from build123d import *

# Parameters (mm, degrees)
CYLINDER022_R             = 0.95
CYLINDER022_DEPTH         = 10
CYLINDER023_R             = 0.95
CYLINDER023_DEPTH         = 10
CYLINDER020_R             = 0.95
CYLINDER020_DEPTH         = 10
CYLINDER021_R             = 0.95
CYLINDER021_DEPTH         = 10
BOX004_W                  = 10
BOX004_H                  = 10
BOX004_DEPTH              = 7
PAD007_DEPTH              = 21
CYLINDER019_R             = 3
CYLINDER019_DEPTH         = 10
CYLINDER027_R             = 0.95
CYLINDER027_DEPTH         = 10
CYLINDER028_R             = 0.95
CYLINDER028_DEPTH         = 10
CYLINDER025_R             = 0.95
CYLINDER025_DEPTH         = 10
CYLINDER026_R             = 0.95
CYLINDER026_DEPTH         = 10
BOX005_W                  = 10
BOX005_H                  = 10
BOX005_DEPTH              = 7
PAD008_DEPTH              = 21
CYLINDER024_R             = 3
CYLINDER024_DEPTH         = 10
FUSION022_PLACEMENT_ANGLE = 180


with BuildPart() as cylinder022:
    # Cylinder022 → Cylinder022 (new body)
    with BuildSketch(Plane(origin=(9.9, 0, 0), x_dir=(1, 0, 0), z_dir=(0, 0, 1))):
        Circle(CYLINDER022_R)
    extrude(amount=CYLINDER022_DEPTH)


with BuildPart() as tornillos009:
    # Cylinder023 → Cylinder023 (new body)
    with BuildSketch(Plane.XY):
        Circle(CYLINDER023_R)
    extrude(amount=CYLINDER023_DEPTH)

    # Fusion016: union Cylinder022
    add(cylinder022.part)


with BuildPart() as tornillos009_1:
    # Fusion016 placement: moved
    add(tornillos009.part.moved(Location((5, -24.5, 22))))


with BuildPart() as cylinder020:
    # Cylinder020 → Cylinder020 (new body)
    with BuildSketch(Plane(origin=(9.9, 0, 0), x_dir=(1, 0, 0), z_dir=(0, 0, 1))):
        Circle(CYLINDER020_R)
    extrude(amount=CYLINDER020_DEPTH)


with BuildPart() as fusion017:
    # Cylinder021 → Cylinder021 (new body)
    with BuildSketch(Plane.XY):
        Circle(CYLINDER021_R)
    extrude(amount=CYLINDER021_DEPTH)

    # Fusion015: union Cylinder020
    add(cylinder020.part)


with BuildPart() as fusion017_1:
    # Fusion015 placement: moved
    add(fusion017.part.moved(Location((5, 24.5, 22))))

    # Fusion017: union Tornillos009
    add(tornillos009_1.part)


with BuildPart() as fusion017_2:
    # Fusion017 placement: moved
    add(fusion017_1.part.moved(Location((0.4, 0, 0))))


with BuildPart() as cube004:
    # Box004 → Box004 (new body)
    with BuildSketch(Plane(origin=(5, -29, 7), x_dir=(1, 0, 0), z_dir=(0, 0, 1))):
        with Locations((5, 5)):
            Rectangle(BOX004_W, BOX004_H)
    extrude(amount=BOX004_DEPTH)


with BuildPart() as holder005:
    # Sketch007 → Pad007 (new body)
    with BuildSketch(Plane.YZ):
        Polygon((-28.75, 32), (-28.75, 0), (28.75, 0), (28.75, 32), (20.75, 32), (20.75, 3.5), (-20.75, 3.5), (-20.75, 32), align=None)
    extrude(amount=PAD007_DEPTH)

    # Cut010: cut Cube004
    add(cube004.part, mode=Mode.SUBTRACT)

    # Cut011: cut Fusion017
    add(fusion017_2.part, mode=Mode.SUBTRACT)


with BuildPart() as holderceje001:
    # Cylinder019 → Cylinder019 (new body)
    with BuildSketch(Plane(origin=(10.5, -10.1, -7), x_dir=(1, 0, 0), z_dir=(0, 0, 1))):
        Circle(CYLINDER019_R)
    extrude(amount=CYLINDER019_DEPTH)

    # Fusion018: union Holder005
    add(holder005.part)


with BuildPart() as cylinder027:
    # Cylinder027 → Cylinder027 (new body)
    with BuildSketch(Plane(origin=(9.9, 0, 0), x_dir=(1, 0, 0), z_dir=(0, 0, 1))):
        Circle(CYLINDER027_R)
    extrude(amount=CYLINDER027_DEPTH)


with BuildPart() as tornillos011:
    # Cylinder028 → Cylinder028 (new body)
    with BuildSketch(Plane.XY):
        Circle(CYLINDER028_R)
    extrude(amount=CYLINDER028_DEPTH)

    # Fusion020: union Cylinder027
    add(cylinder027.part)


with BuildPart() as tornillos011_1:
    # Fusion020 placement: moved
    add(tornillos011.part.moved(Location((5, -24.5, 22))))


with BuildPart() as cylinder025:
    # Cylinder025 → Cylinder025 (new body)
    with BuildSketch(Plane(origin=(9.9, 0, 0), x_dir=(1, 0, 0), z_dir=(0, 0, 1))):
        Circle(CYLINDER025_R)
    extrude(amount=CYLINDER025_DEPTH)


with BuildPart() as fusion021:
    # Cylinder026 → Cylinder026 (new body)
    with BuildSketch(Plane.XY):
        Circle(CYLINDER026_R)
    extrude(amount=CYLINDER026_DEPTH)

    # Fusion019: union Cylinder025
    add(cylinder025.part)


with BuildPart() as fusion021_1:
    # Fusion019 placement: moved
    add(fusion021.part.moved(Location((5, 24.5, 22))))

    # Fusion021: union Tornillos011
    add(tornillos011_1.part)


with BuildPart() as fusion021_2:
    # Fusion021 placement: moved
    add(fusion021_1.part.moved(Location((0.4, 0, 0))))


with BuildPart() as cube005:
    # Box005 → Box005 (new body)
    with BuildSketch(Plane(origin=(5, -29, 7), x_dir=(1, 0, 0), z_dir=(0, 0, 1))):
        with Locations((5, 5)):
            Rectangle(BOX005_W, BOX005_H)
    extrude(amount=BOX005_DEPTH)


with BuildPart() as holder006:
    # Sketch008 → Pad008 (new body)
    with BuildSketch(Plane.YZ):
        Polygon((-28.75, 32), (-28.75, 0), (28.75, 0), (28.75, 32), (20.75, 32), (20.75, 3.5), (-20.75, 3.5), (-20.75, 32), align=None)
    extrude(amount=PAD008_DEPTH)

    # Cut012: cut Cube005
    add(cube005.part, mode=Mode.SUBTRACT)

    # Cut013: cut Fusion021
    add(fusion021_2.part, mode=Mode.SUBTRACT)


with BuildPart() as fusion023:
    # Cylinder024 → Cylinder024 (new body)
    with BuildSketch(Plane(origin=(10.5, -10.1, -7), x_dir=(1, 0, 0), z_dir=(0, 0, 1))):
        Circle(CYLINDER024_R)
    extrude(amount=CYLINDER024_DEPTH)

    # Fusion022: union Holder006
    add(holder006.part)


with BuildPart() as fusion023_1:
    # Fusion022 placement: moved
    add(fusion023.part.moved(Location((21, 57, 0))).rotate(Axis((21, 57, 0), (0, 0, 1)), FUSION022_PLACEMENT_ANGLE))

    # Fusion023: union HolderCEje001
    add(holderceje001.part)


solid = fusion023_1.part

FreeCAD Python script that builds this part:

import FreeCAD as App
import Part
import Sketcher

V = App.Vector
Q = App.Units.Quantity

doc = App.newDocument("Part")
body = doc.addObject("PartDesign::Body", "Body")

# Sketch on XY plane
sketch1 = body.newObject("Sketcher::SketchObject", "Sketch")
sketch1.AttachmentSupport = (doc.getObject("XY_Plane"), [""])
sketch1.MapMode = "FlatFace"
sketch1.addGeometry(Part.Circle(V(9.9, 0, 0), V(0, 0, 1), 0.95), False)
sketch1.addConstraint(Sketcher.Constraint("PointOnObject", 0, 3, -1))
sketch1.addConstraint(Sketcher.Constraint("Diameter", 0, Q("1.9 mm")))
sketch1.addConstraint(Sketcher.Constraint("DistanceX", -1, 1, 0, 3, Q("9.9 mm")))
pad1 = body.newObject("PartDesign::Pad", "Pad")
pad1.Profile = sketch1
pad1.Length = 10
body2 = doc.addObject("PartDesign::Body", "Body001")
body2.AllowCompound = True

# Sketch on XY plane
sketch2 = body2.newObject("Sketcher::SketchObject", "Sketch001")
sketch2.AttachmentSupport = (doc.getObject("XY_Plane001"), [""])
sketch2.MapMode = "FlatFace"
sketch2.addGeometry(Part.Circle(V(0, 0, 0), V(0, 0, 1), 0.95), False)
sketch2.addConstraint(Sketcher.Constraint("Coincident", 0, 3, -1, 1))
sketch2.addConstraint(Sketcher.Constraint("Diameter", 0, Q("1.9 mm")))
pad2 = body2.newObject("PartDesign::Pad", "Pad001")
pad2.Profile = sketch2
pad2.Length = 10
doc.recompute()

boolean = body2.newObject("PartDesign::Boolean", "Boolean")
boolean.Type = "Fuse"
boolean.addObjects([body])
body3 = doc.addObject("PartDesign::Body", "Body002")
body3.AllowCompound = True
doc.recompute()

body2.Placement = App.Placement(V(5, -24.5, 22), App.Rotation(V(0, 0, 1), 0))
boolean2 = body3.newObject("PartDesign::Boolean", "Boolean001")
boolean2.Type = "Fuse"
boolean2.addObjects([body2])
body4 = doc.addObject("PartDesign::Body", "Body003")

# Sketch on XY plane
sketch3 = body4.newObject("Sketcher::SketchObject", "Sketch002")
sketch3.AttachmentSupport = (doc.getObject("XY_Plane003"), [""])
sketch3.MapMode = "FlatFace"
sketch3.addGeometry(Part.Circle(V(9.9, 0, 0), V(0, 0, 1), 0.95), False)
sketch3.addConstraint(Sketcher.Constraint("PointOnObject", 0, 3, -1))
sketch3.addConstraint(Sketcher.Constraint("Diameter", 0, Q("1.9 mm")))
sketch3.addConstraint(Sketcher.Constraint("DistanceX", -1, 1, 0, 3, Q("9.9 mm")))
pad3 = body4.newObject("PartDesign::Pad", "Pad002")
pad3.Profile = sketch3
pad3.Length = 10
body5 = doc.addObject("PartDesign::Body", "Body004")
body5.AllowCompound = True

# Sketch on XY plane
sketch4 = body5.newObject("Sketcher::SketchObject", "Sketch003")
sketch4.AttachmentSupport = (doc.getObject("XY_Plane004"), [""])
sketch4.MapMode = "FlatFace"
sketch4.addGeometry(Part.Circle(V(0, 0, 0), V(0, 0, 1), 0.95), False)
sketch4.addConstraint(Sketcher.Constraint("Coincident", 0, 3, -1, 1))
sketch4.addConstraint(Sketcher.Constraint("Diameter", 0, Q("1.9 mm")))
pad4 = body5.newObject("PartDesign::Pad", "Pad003")
pad4.Profile = sketch4
pad4.Length = 10
doc.recompute()

boolean3 = body5.newObject("PartDesign::Boolean", "Boolean002")
boolean3.Type = "Fuse"
boolean3.addObjects([body4])
body6 = doc.addObject("PartDesign::Body", "Body005")
body6.AllowCompound = True
doc.recompute()

body5.Placement = App.Placement(V(5, 24.5, 22), App.Rotation(V(0, 0, 1), 0))
boolean4 = body6.newObject("PartDesign::Boolean", "Boolean003")
boolean4.Type = "Fuse"
boolean4.addObjects([body5])
doc.recompute()

boolean5 = body6.newObject("PartDesign::Boolean", "Boolean004")
boolean5.Type = "Fuse"
boolean5.addObjects([body3])
body7 = doc.addObject("PartDesign::Body", "Body006")
body7.AllowCompound = True
doc.recompute()

body6.Placement = App.Placement(V(0.4, 0, 0), App.Rotation(V(0, 0, 1), 0))
boolean6 = body7.newObject("PartDesign::Boolean", "Boolean005")
boolean6.Type = "Fuse"
boolean6.addObjects([body6])
body8 = doc.addObject("PartDesign::Body", "Body007")

# Sketch on XY plane
sketch5 = body8.newObject("Sketcher::SketchObject", "Sketch004")
sketch5.AttachmentSupport = (doc.getObject("XY_Plane007"), [""])
sketch5.MapMode = "FlatFace"
sketch5.AttachmentOffset = App.Placement(V(0, 0, 7), App.Rotation())
sketch5.addGeometry(Part.LineSegment(V(5, -19, 0), V(5, -29, 0)), False)
sketch5.addGeometry(Part.LineSegment(V(5, -29, 0), V(15, -29, 0)), False)
sketch5.addGeometry(Part.LineSegment(V(15, -29, 0), V(15, -19, 0)), False)
sketch5.addGeometry(Part.LineSegment(V(15, -19, 0), V(5, -19, 0)), False)
sketch5.addConstraint(Sketcher.Constraint("Coincident", 0, 2, 1, 1))
sketch5.addConstraint(Sketcher.Constraint("Coincident", 1, 2, 2, 1))
sketch5.addConstraint(Sketcher.Constraint("Coincident", 2, 2, 3, 1))
sketch5.addConstraint(Sketcher.Constraint("Coincident", 3, 2, 0, 1))
sketch5.addConstraint(Sketcher.Constraint("Vertical", 0))
sketch5.addConstraint(Sketcher.Constraint("Horizontal", 1))
sketch5.addConstraint(Sketcher.Constraint("Vertical", 2))
sketch5.addConstraint(Sketcher.Constraint("Horizontal", 3))
sketch5.addConstraint(Sketcher.Constraint("Equal", 3, 0))
sketch5.addConstraint(Sketcher.Constraint("DistanceX", 1, 1, 1, 2, Q("10 mm")))
sketch5.addConstraint(Sketcher.Constraint("DistanceX", -1, 1, 0, 2, Q("5 mm")))
sketch5.addConstraint(Sketcher.Constraint("DistanceY", 0, 2, -1, 1, Q("29 mm")))
pad5 = body8.newObject("PartDesign::Pad", "Pad004")
pad5.Profile = sketch5
pad5.Length = 7
body9 = doc.addObject("PartDesign::Body", "Body008")

# Sketch on YZ plane
sketch6 = body9.newObject("Sketcher::SketchObject", "Sketch005")
sketch6.AttachmentSupport = (doc.getObject("YZ_Plane008"), [""])
sketch6.MapMode = "FlatFace"
sketch6.addGeometry(Part.LineSegment(V(-28.75, 32, 0), V(-28.75, 0, 0)), False)
sketch6.addGeometry(Part.LineSegment(V(-28.75, 0, 0), V(28.75, 0, 0)), False)
sketch6.addGeometry(Part.LineSegment(V(28.75, 0, 0), V(28.75, 32, 0)), False)
sketch6.addGeometry(Part.LineSegment(V(28.75, 32, 0), V(20.75, 32, 0)), False)
sketch6.addGeometry(Part.LineSegment(V(20.75, 32, 0), V(20.75, 3.5, 0)), False)
sketch6.addGeometry(Part.LineSegment(V(20.75, 3.5, 0), V(-20.75, 3.5, 0)), False)
sketch6.addGeometry(Part.LineSegment(V(-20.75, 3.5, 0), V(-20.75, 32, 0)), False)
sketch6.addGeometry(Part.LineSegment(V(-20.75, 32, 0), V(-28.75, 32, 0)), False)
sketch6.addConstraint(Sketcher.Constraint("Coincident", 0, 2, 1, 1))
sketch6.addConstraint(Sketcher.Constraint("Coincident", 1, 2, 2, 1))
sketch6.addConstraint(Sketcher.Constraint("Coincident", 2, 2, 3, 1))
sketch6.addConstraint(Sketcher.Constraint("Coincident", 3, 2, 4, 1))
sketch6.addConstraint(Sketcher.Constraint("Coincident", 4, 2, 5, 1))
sketch6.addConstraint(Sketcher.Constraint("Coincident", 5, 2, 6, 1))
sketch6.addConstraint(Sketcher.Constraint("Coincident", 6, 2, 7, 1))
sketch6.addConstraint(Sketcher.Constraint("Coincident", 7, 2, 0, 1))
sketch6.addConstraint(Sketcher.Constraint("Vertical", 0))
sketch6.addConstraint(Sketcher.Constraint("Horizontal", 1))
sketch6.addConstraint(Sketcher.Constraint("Vertical", 2))
sketch6.addConstraint(Sketcher.Constraint("Horizontal", 3))
sketch6.addConstraint(Sketcher.Constraint("Vertical", 4))
sketch6.addConstraint(Sketcher.Constraint("Horizontal", 5))
sketch6.addConstraint(Sketcher.Constraint("Vertical", 6))
sketch6.addConstraint(Sketcher.Constraint("Horizontal", 7))
sketch6.addConstraint(Sketcher.Constraint("Symmetric", 0, 2, 1, 2, -1, 1))
sketch6.addConstraint(Sketcher.Constraint("Symmetric", 3, 2, 6, 2, -2))
sketch6.addConstraint(Sketcher.Constraint("DistanceX", 3, 2, 3, 1, Q("8 mm")))
sketch6.addConstraint(Sketcher.Constraint("DistanceY", 0, 2, 0, 1, Q("32 mm")))
sketch6.addConstraint(Sketcher.Constraint("DistanceX", 1, 1, 1, 2, Q("57.5 mm")))
sketch6.addConstraint(Sketcher.Constraint("DistanceY", 4, 2, 4, 1, Q("28.5 mm")))
pad6 = body9.newObject("PartDesign::Pad", "Pad005")
pad6.Profile = sketch6
pad6.Length = 21
doc.recompute()

boolean7 = body9.newObject("PartDesign::Boolean", "Boolean006")
boolean7.Type = "Cut"
boolean7.addObjects([body8])
doc.recompute()

boolean8 = body9.newObject("PartDesign::Boolean", "Boolean007")
boolean8.Type = "Cut"
boolean8.addObjects([body7])
body10 = doc.addObject("PartDesign::Body", "Body009")

# Sketch on XY plane
sketch7 = body10.newObject("Sketcher::SketchObject", "Sketch006")
sketch7.AttachmentSupport = (doc.getObject("XY_Plane009"), [""])
sketch7.MapMode = "FlatFace"
sketch7.AttachmentOffset = App.Placement(V(0, 0, -7), App.Rotation())
sketch7.addGeometry(Part.Circle(V(10.5, -10.1, 0), V(0, 0, 1), 3), False)
sketch7.addConstraint(Sketcher.Constraint("Diameter", 0, Q("6 mm")))
sketch7.addConstraint(Sketcher.Constraint("DistanceX", -1, 1, 0, 3, Q("10.5 mm")))
sketch7.addConstraint(Sketcher.Constraint("DistanceY", 0, 3, -1, 1, Q("10.1 mm")))
pad7 = body10.newObject("PartDesign::Pad", "Pad006")
pad7.Profile = sketch7
pad7.Length = 10
doc.recompute()

boolean9 = body10.newObject("PartDesign::Boolean", "Boolean008")
boolean9.Type = "Fuse"
boolean9.addObjects([body9])
body11 = doc.addObject("PartDesign::Body", "Body010")

# Sketch on XY plane
sketch8 = body11.newObject("Sketcher::SketchObject", "Sketch007")
sketch8.AttachmentSupport = (doc.getObject("XY_Plane010"), [""])
sketch8.MapMode = "FlatFace"
sketch8.addGeometry(Part.Circle(V(9.9, 0, 0), V(0, 0, 1), 0.95), False)
sketch8.addConstraint(Sketcher.Constraint("PointOnObject", 0, 3, -1))
sketch8.addConstraint(Sketcher.Constraint("Diameter", 0, Q("1.9 mm")))
sketch8.addConstraint(Sketcher.Constraint("DistanceX", -1, 1, 0, 3, Q("9.9 mm")))
pad8 = body11.newObject("PartDesign::Pad", "Pad007")
pad8.Profile = sketch8
pad8.Length = 10
body12 = doc.addObject("PartDesign::Body", "Body011")
body12.AllowCompound = True

# Sketch on XY plane
sketch9 = body12.newObject("Sketcher::SketchObject", "Sketch008")
sketch9.AttachmentSupport = (doc.getObject("XY_Plane011"), [""])
sketch9.MapMode = "FlatFace"
sketch9.addGeometry(Part.Circle(V(0, 0, 0), V(0, 0, 1), 0.95), False)
sketch9.addConstraint(Sketcher.Constraint("Coincident", 0, 3, -1, 1))
sketch9.addConstraint(Sketcher.Constraint("Diameter", 0, Q("1.9 mm")))
pad9 = body12.newObject("PartDesign::Pad", "Pad008")
pad9.Profile = sketch9
pad9.Length = 10
doc.recompute()

boolean10 = body12.newObject("PartDesign::Boolean", "Boolean009")
boolean10.Type = "Fuse"
boolean10.addObjects([body11])
body13 = doc.addObject("PartDesign::Body", "Body012")
body13.AllowCompound = True
doc.recompute()

body12.Placement = App.Placement(V(5, -24.5, 22), App.Rotation(V(0, 0, 1), 0))
boolean11 = body13.newObject("PartDesign::Boolean", "Boolean010")
boolean11.Type = "Fuse"
boolean11.addObjects([body12])
body14 = doc.addObject("PartDesign::Body", "Body013")

# Sketch on XY plane
sketch10 = body14.newObject("Sketcher::SketchObject", "Sketch009")
sketch10.AttachmentSupport = (doc.getObject("XY_Plane013"), [""])
sketch10.MapMode = "FlatFace"
sketch10.addGeometry(Part.Circle(V(9.9, 0, 0), V(0, 0, 1), 0.95), False)
sketch10.addConstraint(Sketcher.Constraint("PointOnObject", 0, 3, -1))
sketch10.addConstraint(Sketcher.Constraint("Diameter", 0, Q("1.9 mm")))
sketch10.addConstraint(Sketcher.Constraint("DistanceX", -1, 1, 0, 3, Q("9.9 mm")))
pad10 = body14.newObject("PartDesign::Pad", "Pad009")
pad10.Profile = sketch10
pad10.Length = 10
body15 = doc.addObject("PartDesign::Body", "Body014")
body15.AllowCompound = True

# Sketch on XY plane
sketch11 = body15.newObject("Sketcher::SketchObject", "Sketch010")
sketch11.AttachmentSupport = (doc.getObject("XY_Plane014"), [""])
sketch11.MapMode = "FlatFace"
sketch11.addGeometry(Part.Circle(V(0, 0, 0), V(0, 0, 1), 0.95), False)
sketch11.addConstraint(Sketcher.Constraint("Coincident", 0, 3, -1, 1))
sketch11.addConstraint(Sketcher.Constraint("Diameter", 0, Q("1.9 mm")))
pad11 = body15.newObject("PartDesign::Pad", "Pad010")
pad11.Profile = sketch11
pad11.Length = 10
doc.recompute()

boolean12 = body15.newObject("PartDesign::Boolean", "Boolean011")
boolean12.Type = "Fuse"
boolean12.addObjects([body14])
body16 = doc.addObject("PartDesign::Body", "Body015")
body16.AllowCompound = True
doc.recompute()

body15.Placement = App.Placement(V(5, 24.5, 22), App.Rotation(V(0, 0, 1), 0))
boolean13 = body16.newObject("PartDesign::Boolean", "Boolean012")
boolean13.Type = "Fuse"
boolean13.addObjects([body15])
doc.recompute()

boolean14 = body16.newObject("PartDesign::Boolean", "Boolean013")
boolean14.Type = "Fuse"
boolean14.addObjects([body13])
body17 = doc.addObject("PartDesign::Body", "Body016")
body17.AllowCompound = True
doc.recompute()

body16.Placement = App.Placement(V(0.4, 0, 0), App.Rotation(V(0, 0, 1), 0))
boolean15 = body17.newObject("PartDesign::Boolean", "Boolean014")
boolean15.Type = "Fuse"
boolean15.addObjects([body16])
body18 = doc.addObject("PartDesign::Body", "Body017")

# Sketch on XY plane
sketch12 = body18.newObject("Sketcher::SketchObject", "Sketch011")
sketch12.AttachmentSupport = (doc.getObject("XY_Plane017"), [""])
sketch12.MapMode = "FlatFace"
sketch12.AttachmentOffset = App.Placement(V(0, 0, 7), App.Rotation())
sketch12.addGeometry(Part.LineSegment(V(5, -19, 0), V(5, -29, 0)), False)
sketch12.addGeometry(Part.LineSegment(V(5, -29, 0), V(15, -29, 0)), False)
sketch12.addGeometry(Part.LineSegment(V(15, -29, 0), V(15, -19, 0)), False)
sketch12.addGeometry(Part.LineSegment(V(15, -19, 0), V(5, -19, 0)), False)
sketch12.addConstraint(Sketcher.Constraint("Coincident", 0, 2, 1, 1))
sketch12.addConstraint(Sketcher.Constraint("Coincident", 1, 2, 2, 1))
sketch12.addConstraint(Sketcher.Constraint("Coincident", 2, 2, 3, 1))
sketch12.addConstraint(Sketcher.Constraint("Coincident", 3, 2, 0, 1))
sketch12.addConstraint(Sketcher.Constraint("Vertical", 0))
sketch12.addConstraint(Sketcher.Constraint("Horizontal", 1))
sketch12.addConstraint(Sketcher.Constraint("Vertical", 2))
sketch12.addConstraint(Sketcher.Constraint("Horizontal", 3))
sketch12.addConstraint(Sketcher.Constraint("Equal", 3, 0))
sketch12.addConstraint(Sketcher.Constraint("DistanceX", 1, 1, 1, 2, Q("10 mm")))
sketch12.addConstraint(Sketcher.Constraint("DistanceX", -1, 1, 0, 2, Q("5 mm")))
sketch12.addConstraint(Sketcher.Constraint("DistanceY", 0, 2, -1, 1, Q("29 mm")))
pad12 = body18.newObject("PartDesign::Pad", "Pad011")
pad12.Profile = sketch12
pad12.Length = 7
body19 = doc.addObject("PartDesign::Body", "Body018")

# Sketch on YZ plane
sketch13 = body19.newObject("Sketcher::SketchObject", "Sketch012")
sketch13.AttachmentSupport = (doc.getObject("YZ_Plane018"), [""])
sketch13.MapMode = "FlatFace"
sketch13.addGeometry(Part.LineSegment(V(-28.75, 32, 0), V(-28.75, 0, 0)), False)
sketch13.addGeometry(Part.LineSegment(V(-28.75, 0, 0), V(28.75, 0, 0)), False)
sketch13.addGeometry(Part.LineSegment(V(28.75, 0, 0), V(28.75, 32, 0)), False)
sketch13.addGeometry(Part.LineSegment(V(28.75, 32, 0), V(20.75, 32, 0)), False)
sketch13.addGeometry(Part.LineSegment(V(20.75, 32, 0), V(20.75, 3.5, 0)), False)
sketch13.addGeometry(Part.LineSegment(V(20.75, 3.5, 0), V(-20.75, 3.5, 0)), False)
sketch13.addGeometry(Part.LineSegment(V(-20.75, 3.5, 0), V(-20.75, 32, 0)), False)
sketch13.addGeometry(Part.LineSegment(V(-20.75, 32, 0), V(-28.75, 32, 0)), False)
sketch13.addConstraint(Sketcher.Constraint("Coincident", 0, 2, 1, 1))
sketch13.addConstraint(Sketcher.Constraint("Coincident", 1, 2, 2, 1))
sketch13.addConstraint(Sketcher.Constraint("Coincident", 2, 2, 3, 1))
sketch13.addConstraint(Sketcher.Constraint("Coincident", 3, 2, 4, 1))
sketch13.addConstraint(Sketcher.Constraint("Coincident", 4, 2, 5, 1))
sketch13.addConstraint(Sketcher.Constraint("Coincident", 5, 2, 6, 1))
sketch13.addConstraint(Sketcher.Constraint("Coincident", 6, 2, 7, 1))
sketch13.addConstraint(Sketcher.Constraint("Coincident", 7, 2, 0, 1))
sketch13.addConstraint(Sketcher.Constraint("Vertical", 0))
sketch13.addConstraint(Sketcher.Constraint("Horizontal", 1))
sketch13.addConstraint(Sketcher.Constraint("Vertical", 2))
sketch13.addConstraint(Sketcher.Constraint("Horizontal", 3))
sketch13.addConstraint(Sketcher.Constraint("Vertical", 4))
sketch13.addConstraint(Sketcher.Constraint("Horizontal", 5))
sketch13.addConstraint(Sketcher.Constraint("Vertical", 6))
sketch13.addConstraint(Sketcher.Constraint("Horizontal", 7))
sketch13.addConstraint(Sketcher.Constraint("Symmetric", 0, 2, 1, 2, -1, 1))
sketch13.addConstraint(Sketcher.Constraint("Symmetric", 3, 2, 6, 2, -2))
sketch13.addConstraint(Sketcher.Constraint("DistanceX", 3, 2, 3, 1, Q("8 mm")))
sketch13.addConstraint(Sketcher.Constraint("DistanceY", 0, 2, 0, 1, Q("32 mm")))
sketch13.addConstraint(Sketcher.Constraint("DistanceX", 1, 1, 1, 2, Q("57.5 mm")))
sketch13.addConstraint(Sketcher.Constraint("DistanceY", 4, 2, 4, 1, Q("28.5 mm")))
pad13 = body19.newObject("PartDesign::Pad", "Pad012")
pad13.Profile = sketch13
pad13.Length = 21
doc.recompute()

boolean16 = body19.newObject("PartDesign::Boolean", "Boolean015")
boolean16.Type = "Cut"
boolean16.addObjects([body18])
doc.recompute()

boolean17 = body19.newObject("PartDesign::Boolean", "Boolean016")
boolean17.Type = "Cut"
boolean17.addObjects([body17])
body20 = doc.addObject("PartDesign::Body", "Body019")

# Sketch on XY plane
sketch14 = body20.newObject("Sketcher::SketchObject", "Sketch013")
sketch14.AttachmentSupport = (doc.getObject("XY_Plane019"), [""])
sketch14.MapMode = "FlatFace"
sketch14.AttachmentOffset = App.Placement(V(0, 0, -7), App.Rotation())
sketch14.addGeometry(Part.Circle(V(10.5, -10.1, 0), V(0, 0, 1), 3), False)
sketch14.addConstraint(Sketcher.Constraint("Diameter", 0, Q("6 mm")))
sketch14.addConstraint(Sketcher.Constraint("DistanceX", -1, 1, 0, 3, Q("10.5 mm")))
sketch14.addConstraint(Sketcher.Constraint("DistanceY", 0, 3, -1, 1, Q("10.1 mm")))
pad14 = body20.newObject("PartDesign::Pad", "Pad013")
pad14.Profile = sketch14
pad14.Length = 10
doc.recompute()

boolean18 = body20.newObject("PartDesign::Boolean", "Boolean017")
boolean18.Type = "Fuse"
boolean18.addObjects([body19])
body21 = doc.addObject("PartDesign::Body", "Body020")
doc.recompute()

body20.Placement = App.Placement(V(21, 57, 0), App.Rotation(V(0, 0, 1), 180))
boolean19 = body21.newObject("PartDesign::Boolean", "Boolean018")
boolean19.Type = "Fuse"
boolean19.addObjects([body20])
doc.recompute()

boolean20 = body21.newObject("PartDesign::Boolean", "Boolean019")
boolean20.Type = "Fuse"
boolean20.addObjects([body10])

doc.recompute()
